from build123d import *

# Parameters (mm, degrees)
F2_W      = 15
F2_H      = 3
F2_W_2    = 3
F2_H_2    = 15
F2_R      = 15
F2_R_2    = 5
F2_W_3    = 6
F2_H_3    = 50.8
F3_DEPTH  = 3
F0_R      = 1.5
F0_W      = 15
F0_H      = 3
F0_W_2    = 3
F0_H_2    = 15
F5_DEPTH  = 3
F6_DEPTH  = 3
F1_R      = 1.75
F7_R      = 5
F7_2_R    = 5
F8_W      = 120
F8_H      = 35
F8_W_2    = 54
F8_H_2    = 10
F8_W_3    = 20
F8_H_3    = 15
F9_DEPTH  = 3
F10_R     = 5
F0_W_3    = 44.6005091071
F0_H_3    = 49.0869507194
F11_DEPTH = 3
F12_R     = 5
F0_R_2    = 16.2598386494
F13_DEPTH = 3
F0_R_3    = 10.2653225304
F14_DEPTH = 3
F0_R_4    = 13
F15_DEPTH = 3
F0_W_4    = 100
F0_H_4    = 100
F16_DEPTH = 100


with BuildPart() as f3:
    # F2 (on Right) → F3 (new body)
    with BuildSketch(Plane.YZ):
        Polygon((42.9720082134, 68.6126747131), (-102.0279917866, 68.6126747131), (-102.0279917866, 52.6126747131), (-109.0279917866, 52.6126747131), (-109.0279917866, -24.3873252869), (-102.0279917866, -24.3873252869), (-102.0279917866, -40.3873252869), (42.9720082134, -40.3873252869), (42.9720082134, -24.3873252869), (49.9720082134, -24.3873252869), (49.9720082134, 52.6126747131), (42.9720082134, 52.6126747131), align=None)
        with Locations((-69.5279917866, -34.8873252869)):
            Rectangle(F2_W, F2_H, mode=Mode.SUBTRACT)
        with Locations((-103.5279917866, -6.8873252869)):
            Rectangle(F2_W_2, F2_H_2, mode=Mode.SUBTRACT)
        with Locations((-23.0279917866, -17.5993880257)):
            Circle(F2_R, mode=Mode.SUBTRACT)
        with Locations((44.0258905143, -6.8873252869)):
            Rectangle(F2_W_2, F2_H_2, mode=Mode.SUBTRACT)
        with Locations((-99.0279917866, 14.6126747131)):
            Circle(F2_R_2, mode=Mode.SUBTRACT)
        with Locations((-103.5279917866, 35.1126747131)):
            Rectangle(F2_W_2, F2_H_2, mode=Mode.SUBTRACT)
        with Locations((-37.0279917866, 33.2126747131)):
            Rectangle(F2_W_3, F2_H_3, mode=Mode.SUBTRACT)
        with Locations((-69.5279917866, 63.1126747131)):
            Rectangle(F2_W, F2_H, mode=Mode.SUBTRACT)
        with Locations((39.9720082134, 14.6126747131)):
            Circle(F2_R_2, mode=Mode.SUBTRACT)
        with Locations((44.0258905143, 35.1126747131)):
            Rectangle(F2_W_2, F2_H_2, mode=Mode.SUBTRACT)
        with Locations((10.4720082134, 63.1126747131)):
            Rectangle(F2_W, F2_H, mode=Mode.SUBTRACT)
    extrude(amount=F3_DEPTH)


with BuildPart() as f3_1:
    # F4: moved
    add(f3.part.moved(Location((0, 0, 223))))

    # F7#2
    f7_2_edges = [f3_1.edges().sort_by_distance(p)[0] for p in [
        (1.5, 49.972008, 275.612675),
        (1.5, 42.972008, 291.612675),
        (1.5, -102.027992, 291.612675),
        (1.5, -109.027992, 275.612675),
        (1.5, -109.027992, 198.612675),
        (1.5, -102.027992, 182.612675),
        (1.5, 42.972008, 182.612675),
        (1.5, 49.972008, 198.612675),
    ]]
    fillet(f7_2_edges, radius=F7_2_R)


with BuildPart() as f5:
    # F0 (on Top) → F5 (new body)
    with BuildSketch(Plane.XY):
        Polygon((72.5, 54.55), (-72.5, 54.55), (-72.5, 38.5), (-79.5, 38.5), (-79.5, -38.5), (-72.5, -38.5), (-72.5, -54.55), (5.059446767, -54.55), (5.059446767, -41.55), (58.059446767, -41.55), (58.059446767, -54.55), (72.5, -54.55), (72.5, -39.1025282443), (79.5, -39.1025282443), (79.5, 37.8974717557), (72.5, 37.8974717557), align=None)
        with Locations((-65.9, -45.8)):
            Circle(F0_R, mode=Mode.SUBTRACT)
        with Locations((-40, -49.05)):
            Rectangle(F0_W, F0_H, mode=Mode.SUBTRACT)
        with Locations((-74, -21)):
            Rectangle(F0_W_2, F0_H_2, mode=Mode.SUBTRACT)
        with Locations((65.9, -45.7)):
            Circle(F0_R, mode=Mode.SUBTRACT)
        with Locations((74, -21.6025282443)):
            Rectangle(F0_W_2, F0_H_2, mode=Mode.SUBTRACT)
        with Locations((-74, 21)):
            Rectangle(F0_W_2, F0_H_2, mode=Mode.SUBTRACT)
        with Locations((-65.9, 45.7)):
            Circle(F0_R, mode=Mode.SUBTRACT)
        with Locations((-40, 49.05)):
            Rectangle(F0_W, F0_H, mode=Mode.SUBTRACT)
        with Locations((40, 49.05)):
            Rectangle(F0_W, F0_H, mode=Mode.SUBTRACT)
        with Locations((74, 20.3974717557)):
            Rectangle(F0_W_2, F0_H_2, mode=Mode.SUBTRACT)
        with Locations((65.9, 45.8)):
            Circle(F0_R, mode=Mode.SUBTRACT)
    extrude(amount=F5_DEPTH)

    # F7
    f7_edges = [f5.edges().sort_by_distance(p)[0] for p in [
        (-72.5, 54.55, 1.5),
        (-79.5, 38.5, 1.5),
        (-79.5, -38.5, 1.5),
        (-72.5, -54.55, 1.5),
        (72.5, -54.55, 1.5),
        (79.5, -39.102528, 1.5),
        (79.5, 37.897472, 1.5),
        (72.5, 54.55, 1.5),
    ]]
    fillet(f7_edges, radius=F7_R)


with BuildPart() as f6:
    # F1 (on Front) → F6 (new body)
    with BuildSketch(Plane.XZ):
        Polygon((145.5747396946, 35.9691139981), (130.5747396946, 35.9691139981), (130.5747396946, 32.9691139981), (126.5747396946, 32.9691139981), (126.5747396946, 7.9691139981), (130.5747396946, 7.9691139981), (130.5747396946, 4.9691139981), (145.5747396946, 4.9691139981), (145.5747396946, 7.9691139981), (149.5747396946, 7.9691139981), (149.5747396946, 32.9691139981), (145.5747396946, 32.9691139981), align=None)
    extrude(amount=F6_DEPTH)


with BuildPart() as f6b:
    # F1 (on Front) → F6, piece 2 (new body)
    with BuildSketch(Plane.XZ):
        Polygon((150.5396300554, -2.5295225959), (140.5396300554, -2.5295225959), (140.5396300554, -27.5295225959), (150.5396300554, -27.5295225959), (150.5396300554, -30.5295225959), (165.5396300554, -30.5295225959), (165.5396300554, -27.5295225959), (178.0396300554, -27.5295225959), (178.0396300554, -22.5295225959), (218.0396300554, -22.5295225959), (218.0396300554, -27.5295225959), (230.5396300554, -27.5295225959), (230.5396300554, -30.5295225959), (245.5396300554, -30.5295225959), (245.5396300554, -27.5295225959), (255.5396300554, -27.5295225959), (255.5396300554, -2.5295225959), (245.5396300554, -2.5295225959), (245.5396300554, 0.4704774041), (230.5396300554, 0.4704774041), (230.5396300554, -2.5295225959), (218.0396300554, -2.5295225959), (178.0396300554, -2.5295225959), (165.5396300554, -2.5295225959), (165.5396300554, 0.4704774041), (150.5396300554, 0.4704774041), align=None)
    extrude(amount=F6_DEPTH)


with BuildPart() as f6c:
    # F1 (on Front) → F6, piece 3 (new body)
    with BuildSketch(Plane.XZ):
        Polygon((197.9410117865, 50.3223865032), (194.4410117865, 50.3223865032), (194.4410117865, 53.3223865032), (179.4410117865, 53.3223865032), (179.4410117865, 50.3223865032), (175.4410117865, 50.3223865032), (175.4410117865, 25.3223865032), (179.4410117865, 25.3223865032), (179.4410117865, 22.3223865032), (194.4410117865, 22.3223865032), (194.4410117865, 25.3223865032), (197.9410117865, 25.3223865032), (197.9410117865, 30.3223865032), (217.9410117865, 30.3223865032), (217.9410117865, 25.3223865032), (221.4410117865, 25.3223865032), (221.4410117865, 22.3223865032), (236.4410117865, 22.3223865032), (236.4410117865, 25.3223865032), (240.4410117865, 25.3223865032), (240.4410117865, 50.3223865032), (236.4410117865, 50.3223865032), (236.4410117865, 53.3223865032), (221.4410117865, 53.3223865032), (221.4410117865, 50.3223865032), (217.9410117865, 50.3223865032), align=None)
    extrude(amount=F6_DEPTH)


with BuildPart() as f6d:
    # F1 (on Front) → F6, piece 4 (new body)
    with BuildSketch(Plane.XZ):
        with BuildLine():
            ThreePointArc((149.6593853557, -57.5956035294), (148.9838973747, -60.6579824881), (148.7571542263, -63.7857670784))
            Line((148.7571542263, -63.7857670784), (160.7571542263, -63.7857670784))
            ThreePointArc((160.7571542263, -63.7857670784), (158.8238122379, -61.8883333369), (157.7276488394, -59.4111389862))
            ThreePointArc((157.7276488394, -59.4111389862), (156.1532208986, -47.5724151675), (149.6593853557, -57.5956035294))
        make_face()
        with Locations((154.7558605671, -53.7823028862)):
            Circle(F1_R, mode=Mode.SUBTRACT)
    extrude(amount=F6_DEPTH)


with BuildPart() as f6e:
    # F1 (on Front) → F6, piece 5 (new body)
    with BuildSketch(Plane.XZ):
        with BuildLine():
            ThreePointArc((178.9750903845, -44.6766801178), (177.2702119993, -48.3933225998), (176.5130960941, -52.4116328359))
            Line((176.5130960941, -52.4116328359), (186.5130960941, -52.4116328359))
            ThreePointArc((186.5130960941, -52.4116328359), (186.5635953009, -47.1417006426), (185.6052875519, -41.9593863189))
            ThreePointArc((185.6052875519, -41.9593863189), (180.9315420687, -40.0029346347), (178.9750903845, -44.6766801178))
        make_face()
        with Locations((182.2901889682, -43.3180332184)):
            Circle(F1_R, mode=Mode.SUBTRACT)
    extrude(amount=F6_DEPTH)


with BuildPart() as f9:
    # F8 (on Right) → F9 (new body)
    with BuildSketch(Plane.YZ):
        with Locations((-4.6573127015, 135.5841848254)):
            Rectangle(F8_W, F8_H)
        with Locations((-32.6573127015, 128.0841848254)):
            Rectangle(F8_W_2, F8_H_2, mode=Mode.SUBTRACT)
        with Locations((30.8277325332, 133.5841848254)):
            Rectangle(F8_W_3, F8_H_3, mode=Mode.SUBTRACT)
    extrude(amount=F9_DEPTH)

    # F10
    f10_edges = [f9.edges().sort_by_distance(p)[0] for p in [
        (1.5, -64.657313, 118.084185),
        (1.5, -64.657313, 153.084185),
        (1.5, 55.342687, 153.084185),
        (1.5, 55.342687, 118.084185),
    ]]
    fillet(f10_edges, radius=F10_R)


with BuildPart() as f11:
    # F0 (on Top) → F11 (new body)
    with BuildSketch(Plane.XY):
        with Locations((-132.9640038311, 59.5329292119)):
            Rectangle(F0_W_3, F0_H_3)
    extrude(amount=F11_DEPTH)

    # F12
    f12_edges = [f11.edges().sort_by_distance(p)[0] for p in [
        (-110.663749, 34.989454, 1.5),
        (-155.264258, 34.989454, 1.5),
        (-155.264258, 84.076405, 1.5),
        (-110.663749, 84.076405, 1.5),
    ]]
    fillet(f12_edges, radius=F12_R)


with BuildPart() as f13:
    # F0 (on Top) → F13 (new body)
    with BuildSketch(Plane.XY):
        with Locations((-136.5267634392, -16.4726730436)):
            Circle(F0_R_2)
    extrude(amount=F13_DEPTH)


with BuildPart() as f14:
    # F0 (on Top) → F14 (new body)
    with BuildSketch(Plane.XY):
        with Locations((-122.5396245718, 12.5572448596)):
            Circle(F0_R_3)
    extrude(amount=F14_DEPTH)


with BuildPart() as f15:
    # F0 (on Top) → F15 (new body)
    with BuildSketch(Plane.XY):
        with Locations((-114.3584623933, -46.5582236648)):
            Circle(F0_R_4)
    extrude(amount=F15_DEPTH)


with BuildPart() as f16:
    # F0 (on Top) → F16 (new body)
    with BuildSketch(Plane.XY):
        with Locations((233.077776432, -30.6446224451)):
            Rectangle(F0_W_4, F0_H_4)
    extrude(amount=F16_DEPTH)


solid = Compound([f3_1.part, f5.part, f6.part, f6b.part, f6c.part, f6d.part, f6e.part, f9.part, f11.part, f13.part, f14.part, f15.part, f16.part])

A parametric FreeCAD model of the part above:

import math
import FreeCAD as App
import Part
import Sketcher
Q = App.Units.Quantity


def edges_at(feature, points):
    """Names of the edges that pass closest to the given points."""
    edges = feature.Shape.Edges
    near = lambda p: min(range(len(edges)), key=lambda i: edges[i].distToShape(Part.Vertex(*p))[0])
    return sorted({f"Edge{near(p) + 1}" for p in points})


def add_polygon(sketch, points):
    """Adds a closed chain of lines whose ends are joined by coincident constraints."""
    first, n = sketch.GeometryCount, len(points)
    for a, b in zip(points, points[1:] + points[:1]):
        sketch.addGeometry(Part.LineSegment(App.Vector(*a, 0), App.Vector(*b, 0)), False)
    for i in range(n):
        sketch.addConstraint(Sketcher.Constraint("Coincident", first + i, 2, first + (i + 1) % n, 1))

doc = App.newDocument("Part")
body = doc.addObject("PartDesign::Body", "Body")

# Sketch on YZ plane
sketch1 = body.newObject("Sketcher::SketchObject", "Sketch")
sketch1.AttachmentSupport = (doc.getObject("YZ_Plane"), [""])
sketch1.MapMode = "FlatFace"
add_polygon(sketch1, [(43, 68.6), (-102, 68.6), (-102, 52.6), (-109, 52.6), (-109, -24.4), (-102, -24.4), (-102, -40.4), (43, -40.4), (43, -24.4), (50, -24.4), (50, 52.6), (43, 52.6)])  # lines 0-11
add_polygon(sketch1, [(-62, -36.4), (-77, -36.4), (-77, -33.4), (-62, -33.4)])  # lines 12-15
add_polygon(sketch1, [(-102, -14.4), (-105, -14.4), (-105, 0.6), (-102, 0.6)])  # lines 16-19
sketch1.addGeometry(Part.Circle(App.Vector(-23, -17.6, 0), App.Vector(0, 0, 1), 15), False)  # 20
add_polygon(sketch1, [(45.5, -14.4), (42.5, -14.4), (42.5, 0.6), (45.5, 0.6)])  # lines 21-24
sketch1.addGeometry(Part.Circle(App.Vector(-99, 14.6, 0), App.Vector(0, 0, 1), 5), False)  # 25
add_polygon(sketch1, [(-102, 27.6), (-105, 27.6), (-105, 42.6), (-102, 42.6)])  # lines 26-29
add_polygon(sketch1, [(-34, 7.8), (-40, 7.8), (-40, 58.6), (-34, 58.6)])  # lines 30-33
add_polygon(sketch1, [(-62, 61.6), (-77, 61.6), (-77, 64.6), (-62, 64.6)])  # lines 34-37
sketch1.addGeometry(Part.Circle(App.Vector(40, 14.6, 0), App.Vector(0, 0, 1), 5), False)  # 38
add_polygon(sketch1, [(45.5, 27.6), (42.5, 27.6), (42.5, 42.6), (45.5, 42.6)])  # lines 39-42
add_polygon(sketch1, [(18, 61.6), (3, 61.6), (3, 64.6), (18, 64.6)])  # lines 43-46
sketch1.addConstraint(Sketcher.Constraint("Horizontal", 0))
sketch1.addConstraint(Sketcher.Constraint("Vertical", 1))
sketch1.addConstraint(Sketcher.Constraint("Horizontal", 2))
sketch1.addConstraint(Sketcher.Constraint("Vertical", 3))
sketch1.addConstraint(Sketcher.Constraint("Horizontal", 4))
sketch1.addConstraint(Sketcher.Constraint("Vertical", 5))
sketch1.addConstraint(Sketcher.Constraint("Horizontal", 6))
sketch1.addConstraint(Sketcher.Constraint("Vertical", 7))
sketch1.addConstraint(Sketcher.Constraint("Horizontal", 8))
sketch1.addConstraint(Sketcher.Constraint("Vertical", 9))
sketch1.addConstraint(Sketcher.Constraint("Horizontal", 10))
sketch1.addConstraint(Sketcher.Constraint("Vertical", 11))
sketch1.addConstraint(Sketcher.Constraint("Horizontal", 12))
sketch1.addConstraint(Sketcher.Constraint("Vertical", 13))
sketch1.addConstraint(Sketcher.Constraint("Horizontal", 14))
sketch1.addConstraint(Sketcher.Constraint("Vertical", 15))
sketch1.addConstraint(Sketcher.Constraint("Horizontal", 16))
sketch1.addConstraint(Sketcher.Constraint("Vertical", 17))
sketch1.addConstraint(Sketcher.Constraint("Horizontal", 18))
sketch1.addConstraint(Sketcher.Constraint("Vertical", 19))
sketch1.addConstraint(Sketcher.Constraint("Horizontal", 21))
sketch1.addConstraint(Sketcher.Constraint("Vertical", 22))
sketch1.addConstraint(Sketcher.Constraint("Horizontal", 23))
sketch1.addConstraint(Sketcher.Constraint("Vertical", 24))
sketch1.addConstraint(Sketcher.Constraint("Horizontal", 26))
sketch1.addConstraint(Sketcher.Constraint("Vertical", 27))
sketch1.addConstraint(Sketcher.Constraint("Horizontal", 28))
sketch1.addConstraint(Sketcher.Constraint("Vertical", 29))
sketch1.addConstraint(Sketcher.Constraint("Horizontal", 30))
sketch1.addConstraint(Sketcher.Constraint("Vertical", 31))
sketch1.addConstraint(Sketcher.Constraint("Horizontal", 32))
sketch1.addConstraint(Sketcher.Constraint("Vertical", 33))
sketch1.addConstraint(Sketcher.Constraint("Horizontal", 34))
sketch1.addConstraint(Sketcher.Constraint("Vertical", 35))
sketch1.addConstraint(Sketcher.Constraint("Horizontal", 36))
sketch1.addConstraint(Sketcher.Constraint("Vertical", 37))
sketch1.addConstraint(Sketcher.Constraint("Horizontal", 39))
sketch1.addConstraint(Sketcher.Constraint("Vertical", 40))
sketch1.addConstraint(Sketcher.Constraint("Horizontal", 41))
sketch1.addConstraint(Sketcher.Constraint("Vertical", 42))
sketch1.addConstraint(Sketcher.Constraint("Horizontal", 43))
sketch1.addConstraint(Sketcher.Constraint("Vertical", 44))
sketch1.addConstraint(Sketcher.Constraint("Horizontal", 45))
sketch1.addConstraint(Sketcher.Constraint("Vertical", 46))
sketch1.addConstraint(Sketcher.Constraint("Equal", 25, 38))
sketch1.addConstraint(Sketcher.Constraint("Horizontal", 25, 3, 38, 3))
sketch1.addConstraint(Sketcher.Constraint("Horizontal", 4, 2, 7, 2))
sketch1.addConstraint(Sketcher.Constraint("Horizontal", 2, 2, 9, 2))
sketch1.addConstraint(Sketcher.Constraint("Horizontal", 19, 2, 21, 2))
sketch1.addConstraint(Sketcher.Constraint("Horizontal", 18, 2, 22, 2))
sketch1.addConstraint(Sketcher.Constraint("Horizontal", 29, 2, 39, 2))
sketch1.addConstraint(Sketcher.Constraint("Horizontal", 28, 2, 40, 2))
sketch1.addConstraint(Sketcher.Constraint("Horizontal", 37, 2, 43, 2))
sketch1.addConstraint(Sketcher.Constraint("Horizontal", 36, 2, 44, 2))
sketch1.addConstraint(Sketcher.Constraint("Vertical", 1, 2, 4, 2))
sketch1.addConstraint(Sketcher.Constraint("Vertical", 7, 2, 10, 2))
sketch1.addConstraint(Sketcher.Constraint("Vertical", 5, 2, 18, 2))
sketch1.addConstraint(Sketcher.Constraint("Vertical", 17, 2, 26, 2))
sketch1.addConstraint(Sketcher.Constraint("Vertical", 19, 2, 28, 2))
sketch1.addConstraint(Sketcher.Constraint("Vertical", 13, 2, 34, 2))
sketch1.addConstraint(Sketcher.Constraint("Vertical", 15, 2, 36, 2))
sketch1.addConstraint(Sketcher.Constraint("Vertical", 22, 2, 39, 2))
sketch1.addConstraint(Sketcher.Constraint("Vertical", 24, 2, 41, 2))
sketch1.addConstraint(Sketcher.Constraint("Equal", 4, 8))
sketch1.addConstraint(Sketcher.Constraint("Equal", 18, 21))
sketch1.addConstraint(Sketcher.Constraint("Equal", 36, 43))
sketch1.addConstraint(Sketcher.Constraint("Equal", 1, 5))
sketch1.addConstraint(Sketcher.Constraint("Equal", 41, 13))
sketch1.addConstraint(Sketcher.Constraint("Equal", 45, 17))
sketch1.addConstraint(Sketcher.Constraint("Equal", 24, 27))
sketch1.addConstraint(Sketcher.Constraint("Equal", 15, 35))
sketch1.addConstraint(Sketcher.Constraint("Diameter", 20, Q("30 mm")))
sketch1.addConstraint(Sketcher.Constraint("Diameter", 25, Q("10 mm")))
sketch1.addConstraint(Sketcher.Constraint("DistanceX", 0, 2, 0, 1, Q("145 mm")))
sketch1.addConstraint(Sketcher.Constraint("DistanceX", 2, 2, 2, 1, Q("7 mm")))
sketch1.addConstraint(Sketcher.Constraint("DistanceX", 12, 2, 12, 1, Q("15 mm")))
sketch1.addConstraint(Sketcher.Constraint("DistanceX", 16, 2, 16, 1, Q("3 mm")))
sketch1.addConstraint(Sketcher.Constraint("DistanceX", 30, 2, 30, 1, Q("6 mm")))
sketch1.addConstraint(Sketcher.Constraint("DistanceY", 1, 2, 1, 1, Q("16 mm")))
sketch1.addConstraint(Sketcher.Constraint("DistanceY", 3, 2, 3, 1, Q("77 mm")))
sketch1.addConstraint(Sketcher.Constraint("DistanceY", 31, 1, 31, 2, Q("50.8 mm")))
sketch1.addConstraint(Sketcher.Constraint("DistanceX", 25, 3, 20, 3, Q("76 mm")))
sketch1.addConstraint(Sketcher.Constraint("DistanceX", 20, 3, 38, 3, Q("63 mm")))
sketch1.addConstraint(Sketcher.Constraint("DistanceX", 0, 2, 25, 3, Q("3 mm")))
sketch1.addConstraint(Sketcher.Constraint("DistanceY", 25, 3, 0, 2, Q("54 mm")))
sketch1.addConstraint(Sketcher.Constraint("DistanceX", 5, 2, 12, 2, Q("25 mm")))
sketch1.addConstraint(Sketcher.Constraint("DistanceY", 5, 2, 12, 2, Q("4 mm")))
sketch1.addConstraint(Sketcher.Constraint("DistanceY", 4, 2, 16, 2, Q("10 mm")))
sketch1.addConstraint(Sketcher.Constraint("DistanceY", 25, 3, 26, 2, Q("13 mm")))
sketch1.addConstraint(Sketcher.Constraint("DistanceX", 30, 2, 20, 3, Q("17 mm")))
sketch1.addConstraint(Sketcher.Constraint("DistanceY", 1, 2, 31, 2, Q("6 mm")))
sketch1.addConstraint(Sketcher.Constraint("DistanceY", 34, 2, 0, 2, Q("7 mm")))
sketch1.addConstraint(Sketcher.Constraint("DistanceX", 32, 2, 43, 2, Q("37 mm")))
sketch1.addConstraint(Sketcher.Constraint("DistanceX", 20, 3, -1, 1, Q("23.027992 mm")))
sketch1.addConstraint(Sketcher.Constraint("DistanceY", 20, 3, -1, 1, Q("17.599388 mm")))
sketch1.addConstraint(Sketcher.Constraint("DistanceX", -1, 1, 21, 2, Q("42.525891 mm")))
sketch1.addConstraint(Sketcher.Constraint("DistanceY", -1, 1, 25, 3, Q("14.612675 mm")))
pad1 = body.newObject("PartDesign::Pad", "Pad")
pad1.Profile = sketch1
pad1.Length = 3
body2 = doc.addObject("PartDesign::Body", "Body001")
doc.recompute()

body.Placement = App.Placement(App.Vector(0, 0, 223), App.Rotation(App.Vector(0, 0, 1), 0))
boolean = body2.newObject("PartDesign::Boolean", "Boolean")
boolean.Type = "Fuse"
boolean.addObjects([body])
doc.recompute()

fillet = body2.newObject("PartDesign::Fillet", "Fillet")
fillet.Base = (boolean, edges_at(boolean, [
    (1.5, 49.972, 275.613),
    (1.5, 42.972, 291.613),
    (1.5, -102.028, 291.613),
    (1.5, -109.028, 275.613),
    (1.5, -109.028, 198.613),
    (1.5, -102.028, 182.613),
    (1.5, 42.972, 182.613),
    (1.5, 49.972, 198.613),
]))
fillet.Radius = 5
body3 = doc.addObject("PartDesign::Body", "Body002")

# Sketch on XY plane
sketch2 = body3.newObject("Sketcher::SketchObject", "Sketch001")
sketch2.AttachmentSupport = (doc.getObject("XY_Plane002"), [""])
sketch2.MapMode = "FlatFace"
add_polygon(sketch2, [(72.5, 54.5), (-72.5, 54.5), (-72.5, 38.5), (-79.5, 38.5), (-79.5, -38.5), (-72.5, -38.5), (-72.5, -54.5), (5.1, -54.5), (5.1, -41.5), (58.1, -41.5), (58.1, -54.5), (72.5, -54.5), (72.5, -39.1), (79.5, -39.1), (79.5, 37.9), (72.5, 37.9)])  # lines 0-15
sketch2.addGeometry(Part.Circle(App.Vector(-65.9, -45.8, 0), App.Vector(0, 0, 1), 1.5), False)  # 16
add_polygon(sketch2, [(-32.5, -50.5), (-47.5, -50.5), (-47.5, -47.5), (-32.5, -47.5)])  # lines 17-20
add_polygon(sketch2, [(-72.5, -28.5), (-75.5, -28.5), (-75.5, -13.5), (-72.5, -13.5)])  # lines 21-24
sketch2.addGeometry(Part.Circle(App.Vector(65.9, -45.7, 0), App.Vector(0, 0, 1), 1.5), False)  # 25
add_polygon(sketch2, [(75.5, -29.1), (72.5, -29.1), (72.5, -14.1), (75.5, -14.1)])  # lines 26-29
add_polygon(sketch2, [(-72.5, 13.5), (-75.5, 13.5), (-75.5, 28.5), (-72.5, 28.5)])  # lines 30-33
sketch2.addGeometry(Part.Circle(App.Vector(-65.9, 45.7, 0), App.Vector(0, 0, 1), 1.5), False)  # 34
add_polygon(sketch2, [(-32.5, 47.5), (-47.5, 47.5), (-47.5, 50.5), (-32.5, 50.5)])  # lines 35-38
add_polygon(sketch2, [(75.5, 12.9), (72.5, 12.9), (72.5, 27.9), (75.5, 27.9)])  # lines 39-42
add_polygon(sketch2, [(47.5, 47.5), (32.5, 47.5), (32.5, 50.5), (47.5, 50.5)])  # lines 43-46
sketch2.addGeometry(Part.Circle(App.Vector(65.9, 45.8, 0), App.Vector(0, 0, 1), 1.5), False)  # 47
sketch2.addConstraint(Sketcher.Constraint("Horizontal", 0))
sketch2.addConstraint(Sketcher.Constraint("Vertical", 1))
sketch2.addConstraint(Sketcher.Constraint("Horizontal", 2))
sketch2.addConstraint(Sketcher.Constraint("Vertical", 3))
sketch2.addConstraint(Sketcher.Constraint("Horizontal", 4))
sketch2.addConstraint(Sketcher.Constraint("Vertical", 5))
sketch2.addConstraint(Sketcher.Constraint("Horizontal", 6))
sketch2.addConstraint(Sketcher.Constraint("Vertical", 7))
sketch2.addConstraint(Sketcher.Constraint("Horizontal", 8))
sketch2.addConstraint(Sketcher.Constraint("Vertical", 9))
sketch2.addConstraint(Sketcher.Constraint("Horizontal", 10))
sketch2.addConstraint(Sketcher.Constraint("Vertical", 11))
sketch2.addConstraint(Sketcher.Constraint("Horizontal", 12))
sketch2.addConstraint(Sketcher.Constraint("Vertical", 13))
sketch2.addConstraint(Sketcher.Constraint("Horizontal", 14))
sketch2.addConstraint(Sketcher.Constraint("Vertical", 15))
sketch2.addConstraint(Sketcher.Constraint("Horizontal", 17))
sketch2.addConstraint(Sketcher.Constraint("Vertical", 18))
sketch2.addConstraint(Sketcher.Constraint("Horizontal", 19))
sketch2.addConstraint(Sketcher.Constraint("Vertical", 20))
sketch2.addConstraint(Sketcher.Constraint("Horizontal", 21))
sketch2.addConstraint(Sketcher.Constraint("Vertical", 22))
sketch2.addConstraint(Sketcher.Constraint("Horizontal", 23))
sketch2.addConstraint(Sketcher.Constraint("Vertical", 24))
sketch2.addConstraint(Sketcher.Constraint("Horizontal", 26))
sketch2.addConstraint(Sketcher.Constraint("Vertical", 27))
sketch2.addConstraint(Sketcher.Constraint("Horizontal", 28))
sketch2.addConstraint(Sketcher.Constraint("Vertical", 29))
sketch2.addConstraint(Sketcher.Constraint("Horizontal", 30))
sketch2.addConstraint(Sketcher.Constraint("Vertical", 31))
sketch2.addConstraint(Sketcher.Constraint("Horizontal", 32))
sketch2.addConstraint(Sketcher.Constraint("Vertical", 33))
sketch2.addConstraint(Sketcher.Constraint("Horizontal", 35))
sketch2.addConstraint(Sketcher.Constraint("Vertical", 36))
sketch2.addConstraint(Sketcher.Constraint("Horizontal", 37))
sketch2.addConstraint(Sketcher.Constraint("Vertical", 38))
sketch2.addConstraint(Sketcher.Constraint("Horizontal", 39))
sketch2.addConstraint(Sketcher.Constraint("Vertical", 40))
sketch2.addConstraint(Sketcher.Constraint("Horizontal", 41))
sketch2.addConstraint(Sketcher.Constraint("Vertical", 42))
sketch2.addConstraint(Sketcher.Constraint("Horizontal", 43))
sketch2.addConstraint(Sketcher.Constraint("Vertical", 44))
sketch2.addConstraint(Sketcher.Constraint("Horizontal", 45))
sketch2.addConstraint(Sketcher.Constraint("Vertical", 46))
sketch2.addConstraint(Sketcher.Constraint("Equal", 16, 25))
sketch2.addConstraint(Sketcher.Constraint("Equal", 25, 34))
sketch2.addConstraint(Sketcher.Constraint("Equal", 34, 47))
sketch2.addConstraint(Sketcher.Constraint("Symmetric", 25, 3, 34, 3, -1, 1))
sketch2.addConstraint(Sketcher.Constraint("Symmetric", 16, 3, 47, 3, -1, 1))
sketch2.addConstraint(Sketcher.Constraint("Symmetric", 0, 2, 10, 2, -1, 1))
sketch2.addConstraint(Sketcher.Constraint("Symmetric", 5, 2, 15, 2, -1, 1))
sketch2.addConstraint(Sketcher.Constraint("Symmetric", 19, 2, 43, 2, -1, 1))
sketch2.addConstraint(Sketcher.Constraint("Symmetric", 17, 2, 45, 2, -1, 1))
sketch2.addConstraint(Sketcher.Constraint("Symmetric", 38, 2, 43, 2, -2))
sketch2.addConstraint(Sketcher.Constraint("Symmetric", 36, 2, 45, 2, -2))
sketch2.addConstraint(Sketcher.Constraint("Symmetric", 1, 2, 4, 2, -1))
sketch2.addConstraint(Sketcher.Constraint("Symmetric", 22, 2, 30, 2, -1))
sketch2.addConstraint(Sketcher.Constraint("Symmetric", 24, 2, 32, 2, -1))
sketch2.addConstraint(Sketcher.Constraint("Vertical", 16, 3, 34, 3))
sketch2.addConstraint(Sketcher.Constraint("Vertical", 5, 2, 23, 2))
sketch2.addConstraint(Sketcher.Constraint("Vertical", 15, 2, 26, 2))
sketch2.addConstraint(Sketcher.Constraint("Vertical", 27, 2, 39, 2))
sketch2.addConstraint(Sketcher.Constraint("Vertical", 29, 2, 41, 2))
sketch2.addConstraint(Sketcher.Constraint("Equal", 4, 12))
sketch2.addConstraint(Sketcher.Constraint("Equal", 23, 26))
sketch2.addConstraint(Sketcher.Constraint("Equal", 3, 13))
sketch2.addConstraint(Sketcher.Constraint("Equal", 41, 18))
sketch2.addConstraint(Sketcher.Constraint("Equal", 45, 22))
sketch2.addConstraint(Sketcher.Constraint("Equal", 24, 27))
sketch2.addConstraint(Sketcher.Constraint("Equal", 33, 40))
sketch2.addConstraint(Sketcher.Constraint("Diameter", 16, Q("3 mm")))
sketch2.addConstraint(Sketcher.Constraint("DistanceX", 0, 2, 0, 1, Q("145 mm")))
sketch2.addConstraint(Sketcher.Constraint("DistanceX", 2, 2, 2, 1, Q("7 mm")))
sketch2.addConstraint(Sketcher.Constraint("DistanceX", 8, 1, 8, 2, Q("53 mm")))
sketch2.addConstraint(Sketcher.Constraint("DistanceX", 17, 2, 17, 1, Q("15 mm")))
sketch2.addConstraint(Sketcher.Constraint("DistanceX", 21, 2, 21, 1, Q("3 mm")))
sketch2.addConstraint(Sketcher.Constraint("DistanceY", 3, 2, 3, 1, Q("77 mm")))
sketch2.addConstraint(Sketcher.Constraint("DistanceY", 7, 1, 7, 2, Q("13 mm")))
sketch2.addConstraint(Sketcher.Constraint("DistanceX", 5, 2, 17, 2, Q("25 mm")))
sketch2.addConstraint(Sketcher.Constraint("DistanceY", 5, 2, 17, 2, Q("4 mm")))
sketch2.addConstraint(Sketcher.Constraint("DistanceY", 4, 2, 21, 2, Q("10 mm")))
sketch2.addConstraint(Sketcher.Constraint("DistanceY", 11, 2, 26, 2, Q("10 mm")))
sketch2.addConstraint(Sketcher.Constraint("DistanceY", 39, 2, 14, 2, Q("25 mm")))
sketch2.addConstraint(Sketcher.Constraint("DistanceY", 1, 2, 1, 1, Q("16.05 mm")))
sketch2.addConstraint(Sketcher.Constraint("DistanceX", 16, 3, -1, 1, Q("65.9 mm")))
sketch2.addConstraint(Sketcher.Constraint("DistanceY", 16, 3, -1, 1, Q("45.8 mm")))
sketch2.addConstraint(Sketcher.Constraint("DistanceY", 25, 3, -1, 1, Q("45.7 mm")))
sketch2.addConstraint(Sketcher.Constraint("DistanceY", 11, 1, 11, 2, Q("15.447472 mm")))
sketch2.addConstraint(Sketcher.Constraint("DistanceX", 6, 1, 6, 2, Q("77.559447 mm")))
pad2 = body3.newObject("PartDesign::Pad", "Pad001")
pad2.Profile = sketch2
pad2.Length = 3
doc.recompute()

fillet2 = body3.newObject("PartDesign::Fillet", "Fillet001")
fillet2.Base = (pad2, edges_at(pad2, [
    (-72.5, 54.55, 1.5),
    (-79.5, 38.5, 1.5),
    (-79.5, -38.5, 1.5),
    (-72.5, -54.55, 1.5),
    (72.5, -54.55, 1.5),
    (79.5, -39.103, 1.5),
    (79.5, 37.897, 1.5),
    (72.5, 54.55, 1.5),
]))
fillet2.Radius = 5
body4 = doc.addObject("PartDesign::Body", "Body003")

# Sketch on XZ plane
sketch3 = body4.newObject("Sketcher::SketchObject", "Sketch002")
sketch3.AttachmentSupport = (doc.getObject("XZ_Plane003"), [""])
sketch3.MapMode = "FlatFace"
add_polygon(sketch3, [(145.6, 36), (130.6, 36), (130.6, 33), (126.6, 33), (126.6, 8), (130.6, 8), (130.6, 5), (145.6, 5), (145.6, 8), (149.6, 8), (149.6, 33), (145.6, 33)])  # lines 0-11
sketch3.addConstraint(Sketcher.Constraint("Horizontal", 0))
sketch3.addConstraint(Sketcher.Constraint("Vertical", 1))
sketch3.addConstraint(Sketcher.Constraint("Horizontal", 2))
sketch3.addConstraint(Sketcher.Constraint("Vertical", 3))
sketch3.addConstraint(Sketcher.Constraint("Horizontal", 4))
sketch3.addConstraint(Sketcher.Constraint("Vertical", 5))
sketch3.addConstraint(Sketcher.Constraint("Horizontal", 6))
sketch3.addConstraint(Sketcher.Constraint("Vertical", 7))
sketch3.addConstraint(Sketcher.Constraint("Horizontal", 8))
sketch3.addConstraint(Sketcher.Constraint("Vertical", 9))
sketch3.addConstraint(Sketcher.Constraint("Horizontal", 10))
sketch3.addConstraint(Sketcher.Constraint("Vertical", 11))
sketch3.addConstraint(Sketcher.Constraint("Horizontal", 4, 2, 7, 2))
sketch3.addConstraint(Sketcher.Constraint("Horizontal", 2, 2, 9, 2))
sketch3.addConstraint(Sketcher.Constraint("Vertical", 1, 2, 4, 2))
sketch3.addConstraint(Sketcher.Constraint("Vertical", 7, 2, 10, 2))
sketch3.addConstraint(Sketcher.Constraint("Equal", 4, 8))
sketch3.addConstraint(Sketcher.Constraint("Equal", 1, 5))
sketch3.addConstraint(Sketcher.Constraint("DistanceX", 0, 2, 0, 1, Q("15 mm")))
sketch3.addConstraint(Sketcher.Constraint("DistanceX", 2, 2, 2, 1, Q("4 mm")))
sketch3.addConstraint(Sketcher.Constraint("DistanceY", 1, 2, 1, 1, Q("3 mm")))
sketch3.addConstraint(Sketcher.Constraint("DistanceY", 3, 2, 3, 1, Q("25 mm")))
sketch3.addConstraint(Sketcher.Constraint("DistanceX", -1, 1, 0, 2, Q("130.57474 mm")))
sketch3.addConstraint(Sketcher.Constraint("DistanceY", -1, 1, 0, 2, Q("35.969114 mm")))
pad3 = body4.newObject("PartDesign::Pad", "Pad002")
pad3.Profile = sketch3
pad3.Length = 3
body5 = doc.addObject("PartDesign::Body", "Body004")

# Sketch on XZ plane
sketch4 = body5.newObject("Sketcher::SketchObject", "Sketch003")
sketch4.AttachmentSupport = (doc.getObject("XZ_Plane004"), [""])
sketch4.MapMode = "FlatFace"
add_polygon(sketch4, [(150.5, -2.5), (140.5, -2.5), (140.5, -27.5), (150.5, -27.5), (150.5, -30.5), (165.5, -30.5), (165.5, -27.5), (178, -27.5), (178, -22.5), (218, -22.5), (218, -27.5), (230.5, -27.5), (230.5, -30.5), (245.5, -30.5), (245.5, -27.5), (255.5, -27.5), (255.5, -2.5), (245.5, -2.5), (245.5, 0.5), (230.5, 0.5), (230.5, -2.5), (165.5, -2.5), (165.5, 0.5), (150.5, 0.5)])  # lines 0-23
sketch4.addConstraint(Sketcher.Constraint("Horizontal", 0))
sketch4.addConstraint(Sketcher.Constraint("Vertical", 1))
sketch4.addConstraint(Sketcher.Constraint("Horizontal", 2))
sketch4.addConstraint(Sketcher.Constraint("Vertical", 3))
sketch4.addConstraint(Sketcher.Constraint("Horizontal", 4))
sketch4.addConstraint(Sketcher.Constraint("Vertical", 5))
sketch4.addConstraint(Sketcher.Constraint("Horizontal", 6))
sketch4.addConstraint(Sketcher.Constraint("Vertical", 7))
sketch4.addConstraint(Sketcher.Constraint("Horizontal", 8))
sketch4.addConstraint(Sketcher.Constraint("Vertical", 9))
sketch4.addConstraint(Sketcher.Constraint("Horizontal", 10))
sketch4.addConstraint(Sketcher.Constraint("Vertical", 11))
sketch4.addConstraint(Sketcher.Constraint("Horizontal", 12))
sketch4.addConstraint(Sketcher.Constraint("Vertical", 13))
sketch4.addConstraint(Sketcher.Constraint("Horizontal", 14))
sketch4.addConstraint(Sketcher.Constraint("Vertical", 15))
sketch4.addConstraint(Sketcher.Constraint("Horizontal", 16))
sketch4.addConstraint(Sketcher.Constraint("Vertical", 17))
sketch4.addConstraint(Sketcher.Constraint("Horizontal", 18))
sketch4.addConstraint(Sketcher.Constraint("Vertical", 19))
sketch4.addConstraint(Sketcher.Constraint("Horizontal", 20))
sketch4.addConstraint(Sketcher.Constraint("Vertical", 21))
sketch4.addConstraint(Sketcher.Constraint("Horizontal", 22))
sketch4.addConstraint(Sketcher.Constraint("Vertical", 23))
sketch4.addConstraint(Sketcher.Constraint("Horizontal", 2, 2, 5, 2))
sketch4.addConstraint(Sketcher.Constraint("Horizontal", 6, 2, 9, 2))
sketch4.addConstraint(Sketcher.Constraint("Horizontal", 4, 2, 11, 2))
sketch4.addConstraint(Sketcher.Constraint("Horizontal", 10, 2, 13, 2))
sketch4.addConstraint(Sketcher.Constraint("Horizontal", 0, 2, 15, 2))
sketch4.addConstraint(Sketcher.Constraint("Horizontal", 16, 2, 19, 2))
sketch4.addConstraint(Sketcher.Constraint("Horizontal", 18, 2, 21, 2))
sketch4.addConstraint(Sketcher.Constraint("Vertical", 13, 2, 16, 2))
sketch4.addConstraint(Sketcher.Constraint("Vertical", 11, 2, 18, 2))
sketch4.addConstraint(Sketcher.Constraint("Vertical", 5, 2, 20, 2))
sketch4.addConstraint(Sketcher.Constraint("Vertical", 3, 2, 22, 2))
sketch4.addConstraint(Sketcher.Constraint("Equal", 6, 10))
sketch4.addConstraint(Sketcher.Constraint("Equal", 4, 12))
sketch4.addConstraint(Sketcher.Constraint("Equal", 2, 14))
sketch4.addConstraint(Sketcher.Constraint("Equal", 13, 17))
sketch4.addConstraint(Sketcher.Constraint("DistanceX", 0, 2, 0, 1, Q("10 mm")))
sketch4.addConstraint(Sketcher.Constraint("DistanceX", 4, 1, 4, 2, Q("15 mm")))
sketch4.addConstraint(Sketcher.Constraint("DistanceX", 8, 1, 8, 2, Q("40 mm")))
sketch4.addConstraint(Sketcher.Constraint("DistanceX", 20, 2, 20, 1, Q("65 mm")))
sketch4.addConstraint(Sketcher.Constraint("DistanceY", 1, 2, 1, 1, Q("25 mm")))
sketch4.addConstraint(Sketcher.Constraint("DistanceY", 3, 2, 3, 1, Q("3 mm")))
sketch4.addConstraint(Sketcher.Constraint("DistanceY", 7, 1, 7, 2, Q("5 mm")))
sketch4.addConstraint(Sketcher.Constraint("DistanceX", -1, 1, 0, 2, Q("140.53963 mm")))
sketch4.addConstraint(Sketcher.Constraint("DistanceY", 0, 2, -1, 1, Q("2.529523 mm")))
pad4 = body5.newObject("PartDesign::Pad", "Pad003")
pad4.Profile = sketch4
pad4.Length = 3
body6 = doc.addObject("PartDesign::Body", "Body005")

# Sketch on XZ plane
sketch5 = body6.newObject("Sketcher::SketchObject", "Sketch004")
sketch5.AttachmentSupport = (doc.getObject("XZ_Plane005"), [""])
sketch5.MapMode = "FlatFace"
add_polygon(sketch5, [(194.4, 50.3), (194.4, 53.3), (179.4, 53.3), (179.4, 50.3), (175.4, 50.3), (175.4, 25.3), (179.4, 25.3), (179.4, 22.3), (194.4, 22.3), (194.4, 25.3), (197.9, 25.3), (197.9, 30.3), (217.9, 30.3), (217.9, 25.3), (221.4, 25.3), (221.4, 22.3), (236.4, 22.3), (236.4, 25.3), (240.4, 25.3), (240.4, 50.3), (236.4, 50.3), (236.4, 53.3), (221.4, 53.3), (221.4, 50.3)])  # lines 0-23
sketch5.addConstraint(Sketcher.Constraint("Vertical", 0))
sketch5.addConstraint(Sketcher.Constraint("Horizontal", 1))
sketch5.addConstraint(Sketcher.Constraint("Vertical", 2))
sketch5.addConstraint(Sketcher.Constraint("Horizontal", 3))
sketch5.addConstraint(Sketcher.Constraint("Vertical", 4))
sketch5.addConstraint(Sketcher.Constraint("Horizontal", 5))
sketch5.addConstraint(Sketcher.Constraint("Vertical", 6))
sketch5.addConstraint(Sketcher.Constraint("Horizontal", 7))
sketch5.addConstraint(Sketcher.Constraint("Vertical", 8))
sketch5.addConstraint(Sketcher.Constraint("Horizontal", 9))
sketch5.addConstraint(Sketcher.Constraint("Vertical", 10))
sketch5.addConstraint(Sketcher.Constraint("Horizontal", 11))
sketch5.addConstraint(Sketcher.Constraint("Vertical", 12))
sketch5.addConstraint(Sketcher.Constraint("Horizontal", 13))
sketch5.addConstraint(Sketcher.Constraint("Vertical", 14))
sketch5.addConstraint(Sketcher.Constraint("Horizontal", 15))
sketch5.addConstraint(Sketcher.Constraint("Vertical", 16))
sketch5.addConstraint(Sketcher.Constraint("Horizontal", 17))
sketch5.addConstraint(Sketcher.Constraint("Vertical", 18))
sketch5.addConstraint(Sketcher.Constraint("Horizontal", 19))
sketch5.addConstraint(Sketcher.Constraint("Vertical", 20))
sketch5.addConstraint(Sketcher.Constraint("Horizontal", 21))
sketch5.addConstraint(Sketcher.Constraint("Vertical", 22))
sketch5.addConstraint(Sketcher.Constraint("Horizontal", 23))
sketch5.addConstraint(Sketcher.Constraint("Horizontal", 5, 2, 8, 2))
sketch5.addConstraint(Sketcher.Constraint("Horizontal", 9, 2, 12, 2))
sketch5.addConstraint(Sketcher.Constraint("Horizontal", 7, 2, 14, 2))
sketch5.addConstraint(Sketcher.Constraint("Horizontal", 13, 2, 16, 2))
sketch5.addConstraint(Sketcher.Constraint("Horizontal", 3, 2, 18, 2))
sketch5.addConstraint(Sketcher.Constraint("Horizontal", 1, 2, 20, 2))
sketch5.addConstraint(Sketcher.Constraint("Horizontal", 19, 2, 22, 2))
sketch5.addConstraint(Sketcher.Constraint("Vertical", 2, 2, 5, 2))
sketch5.addConstraint(Sketcher.Constraint("Vertical", 0, 2, 7, 2))
sketch5.addConstraint(Sketcher.Constraint("Vertical", 16, 2, 19, 2))
sketch5.addConstraint(Sketcher.Constraint("Vertical", 14, 2, 21, 2))
sketch5.addConstraint(Sketcher.Constraint("Equal", 9, 13))
sketch5.addConstraint(Sketcher.Constraint("Equal", 7, 15))
sketch5.addConstraint(Sketcher.Constraint("Equal", 5, 17))
sketch5.addConstraint(Sketcher.Constraint("Equal", 2, 6))
sketch5.addConstraint(Sketcher.Constraint("DistanceX", 1, 2, 1, 1, Q("15 mm")))
sketch5.addConstraint(Sketcher.Constraint("DistanceX", 3, 2, 3, 1, Q("4 mm")))
sketch5.addConstraint(Sketcher.Constraint("DistanceX", 11, 1, 11, 2, Q("20 mm")))
sketch5.addConstraint(Sketcher.Constraint("DistanceX", 23, 2, 23, 1, Q("27 mm")))
sketch5.addConstraint(Sketcher.Constraint("DistanceY", 0, 1, 0, 2, Q("3 mm")))
sketch5.addConstraint(Sketcher.Constraint("DistanceY", 4, 2, 4, 1, Q("25 mm")))
sketch5.addConstraint(Sketcher.Constraint("DistanceY", 10, 1, 10, 2, Q("5 mm")))
sketch5.addConstraint(Sketcher.Constraint("DistanceX", -1, 1, 0, 2, Q("194.441012 mm")))
sketch5.addConstraint(Sketcher.Constraint("DistanceY", -1, 1, 0, 2, Q("53.322387 mm")))
pad5 = body6.newObject("PartDesign::Pad", "Pad004")
pad5.Profile = sketch5
pad5.Length = 3
body7 = doc.addObject("PartDesign::Body", "Body006")

# Sketch on XZ plane
sketch6 = body7.newObject("Sketcher::SketchObject", "Sketch005")
sketch6.AttachmentSupport = (doc.getObject("XZ_Plane006"), [""])
sketch6.MapMode = "FlatFace"
sketch6.addGeometry(Part.ArcOfCircle(Part.Circle(App.Vector(170.4, -63.8, 0), App.Vector(0, 0, 1), 21.7), math.radians(163.41), math.radians(180)), False)
sketch6.addGeometry(Part.LineSegment(App.Vector(148.8, -63.8, 0), App.Vector(160.8, -63.8, 0)), False)
sketch6.addGeometry(Part.ArcOfCircle(Part.Circle(App.Vector(164.7, -57.8, 0), App.Vector(0, 0, 1), 7.2), math.radians(-167), math.radians(-124)), False)
sketch6.addGeometry(Part.ArcOfCircle(Part.Circle(App.Vector(154.8, -53.8, 0), App.Vector(0, 0, 1), 6.4), math.radians(-62), math.radians(217)), False)
sketch6.addGeometry(Part.Circle(App.Vector(154.8, -53.8, 0), App.Vector(0, 0, 1), 1.8), False)
sketch6.addConstraint(Sketcher.Constraint("Coincident", 0, 2, 1, 1))
sketch6.addConstraint(Sketcher.Constraint("Coincident", 1, 2, 2, 2))
sketch6.addConstraint(Sketcher.Constraint("Coincident", 2, 1, 3, 1))
sketch6.addConstraint(Sketcher.Constraint("Coincident", 3, 2, 0, 1))
sketch6.addConstraint(Sketcher.Constraint("Horizontal", 1))
sketch6.addConstraint(Sketcher.Constraint("Coincident", 4, 3, 3, 3))
sketch6.addConstraint(Sketcher.Constraint("Diameter", 4, Q("3.5 mm")))
sketch6.addConstraint(Sketcher.Constraint("DistanceX", 1, 1, 1, 2, Q("12 mm")))
sketch6.addConstraint(Sketcher.Constraint("Radius", 2, Q("7.206 mm")))
sketch6.addConstraint(Sketcher.Constraint("DistanceY", 0, 3, 2, 3, Q("6 mm")))
sketch6.addConstraint(Sketcher.Constraint("DistanceY", 0, 2, 2, 3, Q("6 mm")))
sketch6.addConstraint(Sketcher.Constraint("Radius", 0, Q("21.68632 mm")))
sketch6.addConstraint(Sketcher.Constraint("Radius", 3, Q("6.365165 mm")))
sketch6.addConstraint(Sketcher.Constraint("DistanceX", 2, 1, 2, 3, Q("7.020299 mm")))
sketch6.addConstraint(Sketcher.Constraint("DistanceY", 3, 2, 3, 3, Q("3.813301 mm")))
sketch6.addConstraint(Sketcher.Constraint("DistanceX", -1, 1, 2, 3, Q("164.747948 mm")))
sketch6.addConstraint(Sketcher.Constraint("DistanceY", 2, 1, -1, 1, Q("59.411139 mm")))
pad6 = body7.newObject("PartDesign::Pad", "Pad005")
pad6.Profile = sketch6
pad6.Length = 3
body8 = doc.addObject("PartDesign::Body", "Body007")

# Sketch on XZ plane
sketch7 = body8.newObject("Sketcher::SketchObject", "Sketch006")
sketch7.AttachmentSupport = (doc.getObject("XZ_Plane007"), [""])
sketch7.MapMode = "FlatFace"
sketch7.addGeometry(Part.ArcOfCircle(Part.Circle(App.Vector(193.3, -53.5, 0), App.Vector(0, 0, 1), 16.8), math.radians(148), math.radians(176)), False)
sketch7.addGeometry(Part.LineSegment(App.Vector(176.5, -52.4, 0), App.Vector(186.5, -52.4, 0)), False)
sketch7.addGeometry(Part.ArcOfCircle(Part.Circle(App.Vector(159.2, -49.5, 0), App.Vector(0, 0, 1), 27.4), math.radians(-6), math.radians(16)), False)
sketch7.addGeometry(Part.ArcOfCircle(Part.Circle(App.Vector(182.3, -43.3, 0), App.Vector(0, 0, 1), 3.6), math.radians(22), math.radians(202)), False)
sketch7.addGeometry(Part.Circle(App.Vector(182.3, -43.3, 0), App.Vector(0, 0, 1), 1.8), False)
sketch7.addConstraint(Sketcher.Constraint("Coincident", 0, 2, 1, 1))
sketch7.addConstraint(Sketcher.Constraint("Coincident", 1, 2, 2, 1))
sketch7.addConstraint(Sketcher.Constraint("Coincident", 2, 2, 3, 1))
sketch7.addConstraint(Sketcher.Constraint("Coincident", 3, 2, 0, 1))
sketch7.addConstraint(Sketcher.Constraint("Horizontal", 1))
sketch7.addConstraint(Sketcher.Constraint("Coincident", 4, 3, 3, 3))
sketch7.addConstraint(Sketcher.Constraint("Diameter", 4, Q("3.5 mm")))
sketch7.addConstraint(Sketcher.Constraint("DistanceX", 1, 1, 1, 2, Q("10 mm")))
sketch7.addConstraint(Sketcher.Constraint("Radius", 2, Q("27.429 mm")))
sketch7.addConstraint(Sketcher.Constraint("Radius", 3, Q("3.582708 mm")))
sketch7.addConstraint(Sketcher.Constraint("Radius", 0, Q("16.810582 mm")))
sketch7.addConstraint(Sketcher.Constraint("DistanceY", 0, 2, 3, 3, Q("9.0936 mm")))
sketch7.addConstraint(Sketcher.Constraint("DistanceX", 3, 3, 2, 2, Q("3.315099 mm")))
sketch7.addConstraint(Sketcher.Constraint("DistanceX", 3, 2, 3, 3, Q("3.315099 mm")))
sketch7.addConstraint(Sketcher.Constraint("DistanceX", -1, 1, 2, 3, Q("159.237468 mm")))
sketch7.addConstraint(Sketcher.Constraint("DistanceX", -1, 1, 3, 3, Q("182.290189 mm")))
sketch7.addConstraint(Sketcher.Constraint("DistanceY", 3, 2, -1, 1, Q("44.67668 mm")))
pad7 = body8.newObject("PartDesign::Pad", "Pad006")
pad7.Profile = sketch7
pad7.Length = 3
body9 = doc.addObject("PartDesign::Body", "Body008")

# Sketch on YZ plane
sketch8 = body9.newObject("Sketcher::SketchObject", "Sketch007")
sketch8.AttachmentSupport = (doc.getObject("YZ_Plane008"), [""])
sketch8.MapMode = "FlatFace"
add_polygon(sketch8, [(-65, 153), (-65, 118), (55, 118), (55, 153)])  # lines 0-3
add_polygon(sketch8, [(-6, 123), (-60, 123), (-60, 133), (-6, 133)])  # lines 4-7
add_polygon(sketch8, [(41, 126), (21, 126), (21, 141), (41, 141)])  # lines 8-11
sketch8.addConstraint(Sketcher.Constraint("Vertical", 0))
sketch8.addConstraint(Sketcher.Constraint("Horizontal", 1))
sketch8.addConstraint(Sketcher.Constraint("Vertical", 2))
sketch8.addConstraint(Sketcher.Constraint("Horizontal", 3))
sketch8.addConstraint(Sketcher.Constraint("Horizontal", 4))
sketch8.addConstraint(Sketcher.Constraint("Vertical", 5))
sketch8.addConstraint(Sketcher.Constraint("Horizontal", 6))
sketch8.addConstraint(Sketcher.Constraint("Vertical", 7))
sketch8.addConstraint(Sketcher.Constraint("Horizontal", 8))
sketch8.addConstraint(Sketcher.Constraint("Vertical", 9))
sketch8.addConstraint(Sketcher.Constraint("Horizontal", 10))
sketch8.addConstraint(Sketcher.Constraint("Vertical", 11))
sketch8.addConstraint(Sketcher.Constraint("DistanceX", 1, 1, 1, 2, Q("120 mm")))
sketch8.addConstraint(Sketcher.Constraint("DistanceX", 4, 2, 4, 1, Q("54 mm")))
sketch8.addConstraint(Sketcher.Constraint("DistanceX", 8, 2, 8, 1, Q("20 mm")))
sketch8.addConstraint(Sketcher.Constraint("DistanceY", 0, 2, 0, 1, Q("35 mm")))
sketch8.addConstraint(Sketcher.Constraint("DistanceY", 5, 1, 5, 2, Q("10 mm")))
sketch8.addConstraint(Sketcher.Constraint("DistanceY", 9, 1, 9, 2, Q("15 mm")))
sketch8.addConstraint(Sketcher.Constraint("DistanceX", 0, 2, 4, 2, Q("5 mm")))
sketch8.addConstraint(Sketcher.Constraint("DistanceY", 0, 2, 4, 2, Q("5 mm")))
sketch8.addConstraint(Sketcher.Constraint("DistanceY", 7, 2, 8, 2, Q("3 mm")))
sketch8.addConstraint(Sketcher.Constraint("DistanceX", 0, 2, -1, 1, Q("64.657313 mm")))
sketch8.addConstraint(Sketcher.Constraint("DistanceY", -1, 1, 0, 2, Q("118.084185 mm")))
sketch8.addConstraint(Sketcher.Constraint("DistanceX", -1, 1, 8, 2, Q("20.827733 mm")))
pad8 = body9.newObject("PartDesign::Pad", "Pad007")
pad8.Profile = sketch8
pad8.Length = 3
doc.recompute()

fillet3 = body9.newObject("PartDesign::Fillet", "Fillet002")
fillet3.Base = (pad8, edges_at(pad8, [
    (1.5, -64.657, 118.084),
    (1.5, -64.657, 153.084),
    (1.5, 55.343, 153.084),
    (1.5, 55.343, 118.084),
]))
fillet3.Radius = 5
body10 = doc.addObject("PartDesign::Body", "Body009")

# Sketch on XY plane
sketch9 = body10.newObject("Sketcher::SketchObject", "Sketch008")
sketch9.AttachmentSupport = (doc.getObject("XY_Plane009"), [""])
sketch9.MapMode = "FlatFace"
add_polygon(sketch9, [(-155, 84), (-155, 35), (-111, 35), (-111, 84)])  # lines 0-3
sketch9.addConstraint(Sketcher.Constraint("Vertical", 0))
sketch9.addConstraint(Sketcher.Constraint("Horizontal", 1))
sketch9.addConstraint(Sketcher.Constraint("Vertical", 2))
sketch9.addConstraint(Sketcher.Constraint("Horizontal", 3))
sketch9.addConstraint(Sketcher.Constraint("DistanceX", 1, 1, 1, 2, Q("44.600509 mm")))
sketch9.addConstraint(Sketcher.Constraint("DistanceY", 0, 2, 0, 1, Q("49.086951 mm")))
sketch9.addConstraint(Sketcher.Constraint("DistanceX", 0, 2, -1, 1, Q("155.264258 mm")))
sketch9.addConstraint(Sketcher.Constraint("DistanceY", -1, 1, 0, 2, Q("34.989454 mm")))
pad9 = body10.newObject("PartDesign::Pad", "Pad008")
pad9.Profile = sketch9
pad9.Length = 3
doc.recompute()

fillet4 = body10.newObject("PartDesign::Fillet", "Fillet003")
fillet4.Base = (pad9, edges_at(pad9, [
    (-110.664, 34.989, 1.5),
    (-155.264, 34.989, 1.5),
    (-155.264, 84.076, 1.5),
    (-110.664, 84.076, 1.5),
]))
fillet4.Radius = 5
body11 = doc.addObject("PartDesign::Body", "Body010")

# Sketch on XY plane
sketch10 = body11.newObject("Sketcher::SketchObject", "Sketch009")
sketch10.AttachmentSupport = (doc.getObject("XY_Plane010"), [""])
sketch10.MapMode = "FlatFace"
sketch10.addGeometry(Part.Circle(App.Vector(-137, -16, 0), App.Vector(0, 0, 1), 16), False)
sketch10.addConstraint(Sketcher.Constraint("Diameter", 0, Q("32.519677 mm")))
sketch10.addConstraint(Sketcher.Constraint("DistanceX", 0, 3, -1, 1, Q("136.526763 mm")))
sketch10.addConstraint(Sketcher.Constraint("DistanceY", 0, 3, -1, 1, Q("16.472673 mm")))
pad10 = body11.newObject("PartDesign::Pad", "Pad009")
pad10.Profile = sketch10
pad10.Length = 3
body12 = doc.addObject("PartDesign::Body", "Body011")

# Sketch on XY plane
sketch11 = body12.newObject("Sketcher::SketchObject", "Sketch010")
sketch11.AttachmentSupport = (doc.getObject("XY_Plane011"), [""])
sketch11.MapMode = "FlatFace"
sketch11.addGeometry(Part.Circle(App.Vector(-123, 13, 0), App.Vector(0, 0, 1), 10), False)
sketch11.addConstraint(Sketcher.Constraint("Diameter", 0, Q("20.530645 mm")))
sketch11.addConstraint(Sketcher.Constraint("DistanceX", 0, 3, -1, 1, Q("122.539625 mm")))
sketch11.addConstraint(Sketcher.Constraint("DistanceY", -1, 1, 0, 3, Q("12.557245 mm")))
pad11 = body12.newObject("PartDesign::Pad", "Pad010")
pad11.Profile = sketch11
pad11.Length = 3
body13 = doc.addObject("PartDesign::Body", "Body012")

# Sketch on XY plane
sketch12 = body13.newObject("Sketcher::SketchObject", "Sketch011")
sketch12.AttachmentSupport = (doc.getObject("XY_Plane012"), [""])
sketch12.MapMode = "FlatFace"
sketch12.addGeometry(Part.Circle(App.Vector(-114, -47, 0), App.Vector(0, 0, 1), 13), False)
sketch12.addConstraint(Sketcher.Constraint("Diameter", 0, Q("26 mm")))
sketch12.addConstraint(Sketcher.Constraint("DistanceX", 0, 3, -1, 1, Q("114.358462 mm")))
sketch12.addConstraint(Sketcher.Constraint("DistanceY", 0, 3, -1, 1, Q("46.558224 mm")))
pad12 = body13.newObject("PartDesign::Pad", "Pad011")
pad12.Profile = sketch12
pad12.Length = 3
body14 = doc.addObject("PartDesign::Body", "Body013")

# Sketch on XY plane
sketch13 = body14.newObject("Sketcher::SketchObject", "Sketch012")
sketch13.AttachmentSupport = (doc.getObject("XY_Plane013"), [""])
sketch13.MapMode = "FlatFace"
add_polygon(sketch13, [(183, 19), (183, -81), (283, -81), (283, 19)])  # lines 0-3
sketch13.addConstraint(Sketcher.Constraint("Vertical", 0))
sketch13.addConstraint(Sketcher.Constraint("Horizontal", 1))
sketch13.addConstraint(Sketcher.Constraint("Vertical", 2))
sketch13.addConstraint(Sketcher.Constraint("Horizontal", 3))
sketch13.addConstraint(Sketcher.Constraint("Equal", 3, 0))
sketch13.addConstraint(Sketcher.Constraint("DistanceX", 1, 1, 1, 2, Q("100 mm")))
sketch13.addConstraint(Sketcher.Constraint("DistanceX", -1, 1, 0, 2, Q("183.077776 mm")))
sketch13.addConstraint(Sketcher.Constraint("DistanceY", 0, 2, -1, 1, Q("80.644622 mm")))
pad13 = body14.newObject("PartDesign::Pad", "Pad012")
pad13.Profile = sketch13
pad13.Length = 100

doc.recompute()
